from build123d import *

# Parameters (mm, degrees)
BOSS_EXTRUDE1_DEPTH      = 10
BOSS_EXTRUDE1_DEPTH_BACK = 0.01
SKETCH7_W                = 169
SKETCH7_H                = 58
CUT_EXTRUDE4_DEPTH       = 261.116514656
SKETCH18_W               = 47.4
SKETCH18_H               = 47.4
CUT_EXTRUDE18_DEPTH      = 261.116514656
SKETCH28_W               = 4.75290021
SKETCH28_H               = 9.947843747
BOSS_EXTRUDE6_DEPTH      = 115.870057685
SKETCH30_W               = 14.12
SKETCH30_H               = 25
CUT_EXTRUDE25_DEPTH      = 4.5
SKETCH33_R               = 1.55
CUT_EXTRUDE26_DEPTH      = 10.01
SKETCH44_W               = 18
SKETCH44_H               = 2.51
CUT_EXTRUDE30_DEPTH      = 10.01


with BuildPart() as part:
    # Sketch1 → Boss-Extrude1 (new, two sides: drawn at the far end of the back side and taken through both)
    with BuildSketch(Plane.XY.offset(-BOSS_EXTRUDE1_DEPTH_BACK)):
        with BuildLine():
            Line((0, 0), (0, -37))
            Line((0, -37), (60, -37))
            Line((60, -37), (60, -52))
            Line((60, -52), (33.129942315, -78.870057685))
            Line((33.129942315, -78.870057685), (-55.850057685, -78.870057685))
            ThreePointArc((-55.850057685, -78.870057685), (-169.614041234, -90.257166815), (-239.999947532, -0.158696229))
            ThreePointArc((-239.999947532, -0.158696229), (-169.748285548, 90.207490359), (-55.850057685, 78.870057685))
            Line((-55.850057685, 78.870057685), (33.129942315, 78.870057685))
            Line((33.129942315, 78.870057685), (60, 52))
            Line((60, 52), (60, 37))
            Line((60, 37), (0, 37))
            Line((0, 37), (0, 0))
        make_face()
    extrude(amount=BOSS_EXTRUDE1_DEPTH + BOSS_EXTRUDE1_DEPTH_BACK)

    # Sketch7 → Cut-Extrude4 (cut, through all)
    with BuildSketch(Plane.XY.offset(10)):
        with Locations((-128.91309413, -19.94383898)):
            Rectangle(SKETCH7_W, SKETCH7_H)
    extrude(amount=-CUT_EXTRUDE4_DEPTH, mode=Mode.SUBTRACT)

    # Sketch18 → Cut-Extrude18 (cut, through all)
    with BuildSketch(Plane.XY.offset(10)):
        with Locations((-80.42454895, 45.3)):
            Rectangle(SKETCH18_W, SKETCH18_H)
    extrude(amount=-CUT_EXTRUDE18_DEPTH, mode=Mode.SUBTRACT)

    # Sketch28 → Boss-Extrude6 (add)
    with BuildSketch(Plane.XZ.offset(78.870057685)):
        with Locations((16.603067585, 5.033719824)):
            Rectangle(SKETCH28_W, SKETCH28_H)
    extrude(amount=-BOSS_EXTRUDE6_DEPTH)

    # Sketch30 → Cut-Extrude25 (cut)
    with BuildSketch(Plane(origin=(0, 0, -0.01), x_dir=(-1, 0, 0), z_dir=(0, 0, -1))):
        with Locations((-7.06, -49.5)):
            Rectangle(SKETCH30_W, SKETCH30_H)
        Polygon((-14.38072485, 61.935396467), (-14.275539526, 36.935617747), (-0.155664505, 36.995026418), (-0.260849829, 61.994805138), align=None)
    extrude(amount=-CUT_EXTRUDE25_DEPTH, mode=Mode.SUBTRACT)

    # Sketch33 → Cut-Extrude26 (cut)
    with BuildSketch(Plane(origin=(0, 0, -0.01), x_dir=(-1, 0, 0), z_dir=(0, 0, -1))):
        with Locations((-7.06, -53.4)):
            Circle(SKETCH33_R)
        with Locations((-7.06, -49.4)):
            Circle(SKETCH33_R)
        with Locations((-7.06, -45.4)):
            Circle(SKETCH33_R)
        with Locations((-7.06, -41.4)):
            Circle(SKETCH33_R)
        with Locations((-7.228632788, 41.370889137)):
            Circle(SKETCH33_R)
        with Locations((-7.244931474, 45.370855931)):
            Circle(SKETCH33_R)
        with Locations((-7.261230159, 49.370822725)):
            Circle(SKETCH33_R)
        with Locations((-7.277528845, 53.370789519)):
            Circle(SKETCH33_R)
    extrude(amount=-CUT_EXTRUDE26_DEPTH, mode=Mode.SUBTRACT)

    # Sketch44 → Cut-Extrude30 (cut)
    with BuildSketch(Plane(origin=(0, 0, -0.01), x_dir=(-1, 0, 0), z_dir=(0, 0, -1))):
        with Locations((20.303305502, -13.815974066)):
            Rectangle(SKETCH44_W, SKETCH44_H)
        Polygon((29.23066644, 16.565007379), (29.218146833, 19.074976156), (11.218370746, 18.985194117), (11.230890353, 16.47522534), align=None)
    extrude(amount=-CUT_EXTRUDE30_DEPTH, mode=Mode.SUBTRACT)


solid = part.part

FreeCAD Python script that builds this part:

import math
import FreeCAD as App
import Part
import Sketcher

V = App.Vector
Q = App.Units.Quantity


def add_polygon(sketch, points):
    """Adds a closed chain of lines whose ends are joined by coincident constraints."""
    first, n = sketch.GeometryCount, len(points)
    for a, b in zip(points, points[1:] + points[:1]):
        sketch.addGeometry(Part.LineSegment(App.Vector(*a, 0), App.Vector(*b, 0)), False)
    for i in range(n):
        sketch.addConstraint(Sketcher.Constraint("Coincident", first + i, 2, first + (i + 1) % n, 1))

doc = App.newDocument("Part")
body = doc.addObject("PartDesign::Body", "Body")

# Sketch on XY plane
sketch1 = doc.addObject("Sketcher::SketchObject", "Sketch")
body.addObject(sketch1)
sketch1.AttachmentSupport = (doc.XY_Plane, [""])
sketch1.MapMode = "FlatFace"
sketch1.addGeometry([
    Part.LineSegment(V(60, -37, 0), V(0, -37, 0)),  # 0
    Part.LineSegment(V(0, -37, 0), V(0, 37, 0)),  # 1
    Part.LineSegment(V(0, 37, 0), V(60, 37, 0)),  # 2
    Part.LineSegment(V(60, 37, 0), V(60, 52, 0)),  # 3
    Part.LineSegment(V(60, 52, 0), V(33.129942, 78.870058, 0)),  # 4
    Part.LineSegment(V(33.129942, 78.870058, 0), V(-55.850058, 78.870058, 0)),  # 5
    Part.ArcOfCircle(Part.Circle(V(-123.063246, -18.576269, 0), V(0, 0, 1), 118.378204), math.radians(55.404195), math.radians(171.049421)),  # 6
    Part.ArcOfCircle(Part.Circle(V(-123.063246, 18.651175, 0), V(0, 0, 1), 118.439873), math.radians(-170.861956), math.radians(-55.424769)),  # 7
    Part.LineSegment(V(-55.850058, -78.870058, 0), V(33.129942, -78.870058, 0)),  # 8
    Part.LineSegment(V(33.129942, -78.870058, 0), V(60, -52, 0)),  # 9
    Part.LineSegment(V(60, -52, 0), V(60, -37, 0)),  # 10
], False)
sketch1.addConstraint([
    Sketcher.Constraint("Coincident", 0, 2, 1, 1),
    Sketcher.Constraint("Coincident", 1, 2, 2, 1),
    Sketcher.Constraint("Coincident", 2, 2, 3, 1),
    Sketcher.Constraint("Coincident", 3, 2, 4, 1),
    Sketcher.Constraint("Coincident", 4, 2, 5, 1),
    Sketcher.Constraint("Coincident", 5, 2, 6, 1),
    Sketcher.Constraint("Coincident", 6, 2, 7, 1),
    Sketcher.Constraint("Coincident", 7, 2, 8, 1),
    Sketcher.Constraint("Coincident", 8, 2, 9, 1),
    Sketcher.Constraint("Coincident", 9, 2, 10, 1),
    Sketcher.Constraint("Coincident", 10, 2, 0, 1),
    Sketcher.Constraint("Horizontal", 0),
    Sketcher.Constraint("Vertical", 1),
    Sketcher.Constraint("Horizontal", 2),
    Sketcher.Constraint("Vertical", 3),
    Sketcher.Constraint("Horizontal", 5),
    Sketcher.Constraint("Horizontal", 8),
    Sketcher.Constraint("Vertical", 10),
    Sketcher.Constraint("Symmetric", 0, 2, 1, 2, -1, 1),
    Sketcher.Constraint("Symmetric", 5, 2, 7, 2, -1),
    Sketcher.Constraint("Symmetric", 3, 2, 9, 2, -1),
    Sketcher.Constraint("Perpendicular", 4, 9),
    Sketcher.Constraint("Vertical", 6, 3, 7, 3),
    Sketcher.Constraint("Vertical", 4, 2, 8, 2),
    Sketcher.Constraint("DistanceX", 0, 2, 0, 1, Q("60 mm")),
    Sketcher.Constraint("DistanceY", 1, 1, 1, 2, Q("74 mm")),
    Sketcher.Constraint("DistanceY", 3, 1, 3, 2, Q("15 mm")),
    Sketcher.Constraint("Distance", 4, Q("38 mm")),
    Sketcher.Constraint("DistanceX", 5, 2, 5, 1, Q("88.98 mm")),
    Sketcher.Constraint("Radius", 6, Q("118.378204 mm")),
    Sketcher.Constraint("Radius", 7, Q("118.439873 mm")),
    Sketcher.Constraint("DistanceX", 6, 2, 6, 3, Q("116.936702 mm")),
])
pad1 = doc.addObject("PartDesign::Pad", "Pad")
body.addObject(pad1)
pad1.Profile = sketch1
pad1.Type = "TwoLengths"
pad1.Length = 10
pad1.Length2 = 0.01

# Sketch on XY plane
sketch2 = doc.addObject("Sketcher::SketchObject", "Sketch001")
body.addObject(sketch2)
sketch2.AttachmentSupport = (doc.XY_Plane, [""])
sketch2.MapMode = "FlatFace"
sketch2.AttachmentOffset = App.Placement(V(0, 0, 10), App.Rotation())
add_polygon(sketch2, [(-213.413094, 9.056161), (-213.413094, -48.943839), (-44.413094, -48.943839), (-44.413094, 9.056161)])  # lines 0-3
sketch2.addConstraint([
    Sketcher.Constraint("Vertical", 0),
    Sketcher.Constraint("Horizontal", 1),
    Sketcher.Constraint("Vertical", 2),
    Sketcher.Constraint("Horizontal", 3),
    Sketcher.Constraint("DistanceX", 1, 1, 1, 2, Q("169 mm")),
    Sketcher.Constraint("DistanceY", 0, 2, 0, 1, Q("58 mm")),
    Sketcher.Constraint("DistanceY", 0, 2, -1, 1, Q("48.943839 mm")),
    Sketcher.Constraint("DistanceX", 0, 2, -1, 1, Q("213.413094 mm")),
])
pocket1 = doc.addObject("PartDesign::Pocket", "Pocket")
body.addObject(pocket1)
pocket1.Profile = sketch2
pocket1.Type = "ThroughAll"

# Sketch on XY plane
sketch3 = doc.addObject("Sketcher::SketchObject", "Sketch002")
body.addObject(sketch3)
sketch3.AttachmentSupport = (doc.XY_Plane, [""])
sketch3.MapMode = "FlatFace"
sketch3.AttachmentOffset = App.Placement(V(0, 0, 10), App.Rotation())
add_polygon(sketch3, [(-104.124549, 69), (-104.124549, 21.6), (-56.724549, 21.6), (-56.724549, 69)])  # lines 0-3
sketch3.addConstraint([
    Sketcher.Constraint("Vertical", 0),
    Sketcher.Constraint("Horizontal", 1),
    Sketcher.Constraint("Vertical", 2),
    Sketcher.Constraint("Horizontal", 3),
    Sketcher.Constraint("Equal", 3, 0),
    Sketcher.Constraint("DistanceX", 1, 1, 1, 2, Q("47.4 mm")),
    Sketcher.Constraint("DistanceY", -1, 1, 2, 2, Q("69 mm")),
    Sketcher.Constraint("DistanceX", 0, 2, -1, 1, Q("104.124549 mm")),
])
pocket2 = doc.addObject("PartDesign::Pocket", "Pocket001")
body.addObject(pocket2)
pocket2.Profile = sketch3
pocket2.Type = "ThroughAll"

# Sketch on XZ plane
sketch4 = doc.addObject("Sketcher::SketchObject", "Sketch003")
body.addObject(sketch4)
sketch4.AttachmentSupport = (doc.XZ_Plane, [""])
sketch4.MapMode = "FlatFace"
sketch4.AttachmentOffset = App.Placement(V(0, 0, 78.870058), App.Rotation())
add_polygon(sketch4, [(14.226617, 10.007642), (14.226617, 0.059798), (18.979518, 0.059798), (18.979518, 10.007642)])  # lines 0-3
sketch4.addConstraint([
    Sketcher.Constraint("Vertical", 0),
    Sketcher.Constraint("Horizontal", 1),
    Sketcher.Constraint("Vertical", 2),
    Sketcher.Constraint("Horizontal", 3),
    Sketcher.Constraint("DistanceX", 1, 1, 1, 2, Q("4.7529 mm")),
    Sketcher.Constraint("DistanceY", 0, 2, 0, 1, Q("9.947844 mm")),
    Sketcher.Constraint("DistanceY", -1, 1, 2, 2, Q("10.007642 mm")),
    Sketcher.Constraint("DistanceX", -1, 1, 0, 2, Q("14.226617 mm")),
])
pad2 = doc.addObject("PartDesign::Pad", "Pad001")
body.addObject(pad2)
pad2.Profile = sketch4
pad2.Length = 115.870058
pad2.Reversed = True

# Sketch on XY plane
sketch5 = doc.addObject("Sketcher::SketchObject", "Sketch004")
body.addObject(sketch5)
sketch5.AttachmentSupport = (doc.XY_Plane, [""])
sketch5.MapMode = "FlatFace"
sketch5.AttachmentOffset = App.Placement(V(0, 0, -0.01), App.Rotation())
add_polygon(sketch5, [(14.12, -37), (14.12, -62), (0, -62), (0, -37)])  # lines 0-3
add_polygon(sketch5, [(14.380725, 61.935396), (14.27554, 36.935618), (0.155665, 36.995026), (0.26085, 61.994805)])  # lines 4-7
sketch5.addConstraint([
    Sketcher.Constraint("Vertical", 0),
    Sketcher.Constraint("Horizontal", 1),
    Sketcher.Constraint("Vertical", 2),
    Sketcher.Constraint("Horizontal", 3),
    Sketcher.Constraint("PointOnObject", 1, 2, -2),
    Sketcher.Constraint("Perpendicular", 4, 5),
    Sketcher.Constraint("Perpendicular", 5, 6),
    Sketcher.Constraint("Perpendicular", 6, 7),
    Sketcher.Constraint("DistanceY", 0, 2, 0, 1, Q("25 mm")),
    Sketcher.Constraint("Distance", 4, Q("25 mm")),
    Sketcher.Constraint("DistanceY", 0, 2, -1, 1, Q("62 mm")),
    Sketcher.Constraint("DistanceX", 1, 2, 1, 1, Q("14.12 mm")),
    Sketcher.Constraint("Distance", 5, Q("14.12 mm")),
    Sketcher.Constraint("DistanceX", -1, 1, 4, 2, Q("14.27554 mm")),
    Sketcher.Constraint("DistanceX", -1, 1, 6, 2, Q("0.26085 mm")),
    Sketcher.Constraint("DistanceY", -1, 1, 4, 2, Q("36.935618 mm")),
])
pocket3 = doc.addObject("PartDesign::Pocket", "Pocket002")
body.addObject(pocket3)
pocket3.Profile = sketch5
pocket3.Length = 4.5
pocket3.Reversed = True

# Sketch on XY plane
sketch6 = doc.addObject("Sketcher::SketchObject", "Sketch005")
body.addObject(sketch6)
sketch6.AttachmentSupport = (doc.XY_Plane, [""])
sketch6.MapMode = "FlatFace"
sketch6.AttachmentOffset = App.Placement(V(0, 0, -0.01), App.Rotation())
sketch6.addGeometry([
    Part.Circle(V(7.06, -53.4, 0), V(0, 0, 1), 1.55),  # 0
    Part.Circle(V(7.06, -49.4, 0), V(0, 0, 1), 1.55),  # 1
    Part.Circle(V(7.06, -45.4, 0), V(0, 0, 1), 1.55),  # 2
    Part.Circle(V(7.06, -41.4, 0), V(0, 0, 1), 1.55),  # 3
    Part.Circle(V(7.228633, 41.370889, 0), V(0, 0, 1), 1.55),  # 4
    Part.Circle(V(7.244931, 45.370856, 0), V(0, 0, 1), 1.55),  # 5
    Part.Circle(V(7.26123, 49.370823, 0), V(0, 0, 1), 1.55),  # 6
    Part.Circle(V(7.277529, 53.37079, 0), V(0, 0, 1), 1.55),  # 7
], False)
sketch6.addConstraint([
    Sketcher.Constraint("Equal", 0, 1),
    Sketcher.Constraint("Equal", 1, 2),
    Sketcher.Constraint("Equal", 2, 3),
    Sketcher.Constraint("Equal", 3, 4),
    Sketcher.Constraint("Equal", 4, 5),
    Sketcher.Constraint("Equal", 5, 6),
    Sketcher.Constraint("Equal", 6, 7),
    Sketcher.Constraint("Vertical", 0, 3, 1, 3),
    Sketcher.Constraint("Vertical", 1, 3, 2, 3),
    Sketcher.Constraint("Vertical", 2, 3, 3, 3),
    Sketcher.Constraint("Diameter", 0, Q("3.1 mm")),
    Sketcher.Constraint("DistanceY", 0, 3, 1, 3, Q("4 mm")),
    Sketcher.Constraint("DistanceY", 1, 3, 2, 3, Q("4 mm")),
    Sketcher.Constraint("DistanceY", 2, 3, 3, 3, Q("4 mm")),
    Sketcher.Constraint("DistanceY", 0, 3, -1, 1, Q("53.4 mm")),
    Sketcher.Constraint("DistanceX", -1, 1, 0, 3, Q("7.06 mm")),
    Sketcher.Constraint("DistanceX", 4, 3, 5, 3, Q("0.016299 mm")),
    Sketcher.Constraint("DistanceX", 5, 3, 6, 3, Q("0.016299 mm")),
    Sketcher.Constraint("DistanceX", 6, 3, 7, 3, Q("0.016299 mm")),
    Sketcher.Constraint("DistanceY", 4, 3, 7, 3, Q("11.9999 mm")),
    Sketcher.Constraint("DistanceY", -1, 1, 4, 3, Q("41.370889 mm")),
    Sketcher.Constraint("DistanceX", -1, 1, 5, 3, Q("7.244931 mm")),
    Sketcher.Constraint("DistanceY", -1, 1, 5, 3, Q("45.370856 mm")),
    Sketcher.Constraint("DistanceY", -1, 1, 6, 3, Q("49.370823 mm")),
])
pocket4 = doc.addObject("PartDesign::Pocket", "Pocket003")
body.addObject(pocket4)
pocket4.Profile = sketch6
pocket4.Length = 10.01
pocket4.Reversed = True

# Sketch on XY plane
sketch7 = doc.addObject("Sketcher::SketchObject", "Sketch006")
body.addObject(sketch7)
sketch7.AttachmentSupport = (doc.XY_Plane, [""])
sketch7.MapMode = "FlatFace"
sketch7.AttachmentOffset = App.Placement(V(0, 0, -0.01), App.Rotation())
add_polygon(sketch7, [(-11.303306, -12.560974), (-11.303306, -15.070974), (-29.303306, -15.070974), (-29.303306, -12.560974)])  # lines 0-3
add_polygon(sketch7, [(-29.230666, 16.565007), (-29.218147, 19.074976), (-11.218371, 18.985194), (-11.23089, 16.475225)])  # lines 4-7
sketch7.addConstraint([
    Sketcher.Constraint("Vertical", 0),
    Sketcher.Constraint("Horizontal", 1),
    Sketcher.Constraint("Vertical", 2),
    Sketcher.Constraint("Horizontal", 3),
    Sketcher.Constraint("Perpendicular", 4, 5),
    Sketcher.Constraint("Perpendicular", 5, 6),
    Sketcher.Constraint("Perpendicular", 6, 7),
    Sketcher.Constraint("DistanceX", 1, 2, 1, 1, Q("18 mm")),
    Sketcher.Constraint("Distance", 5, Q("18 mm")),
    Sketcher.Constraint("DistanceY", 0, 2, 0, 1, Q("2.51 mm")),
    Sketcher.Constraint("Distance", 4, Q("2.51 mm")),
    Sketcher.Constraint("DistanceY", 3, 2, 6, 2, Q("29.036199 mm")),
    Sketcher.Constraint("DistanceX", 5, 2, -1, 1, Q("11.218371 mm")),
    Sketcher.Constraint("DistanceX", 6, 2, -1, 1, Q("11.23089 mm")),
    Sketcher.Constraint("DistanceX", 2, 2, 4, 2, Q("0.085159 mm")),
    Sketcher.Constraint("DistanceY", 0, 2, -1, 1, Q("15.070974 mm")),
])
pocket5 = doc.addObject("PartDesign::Pocket", "Pocket004")
body.addObject(pocket5)
pocket5.Profile = sketch7
pocket5.Length = 10.01
pocket5.Reversed = True

doc.recompute()
